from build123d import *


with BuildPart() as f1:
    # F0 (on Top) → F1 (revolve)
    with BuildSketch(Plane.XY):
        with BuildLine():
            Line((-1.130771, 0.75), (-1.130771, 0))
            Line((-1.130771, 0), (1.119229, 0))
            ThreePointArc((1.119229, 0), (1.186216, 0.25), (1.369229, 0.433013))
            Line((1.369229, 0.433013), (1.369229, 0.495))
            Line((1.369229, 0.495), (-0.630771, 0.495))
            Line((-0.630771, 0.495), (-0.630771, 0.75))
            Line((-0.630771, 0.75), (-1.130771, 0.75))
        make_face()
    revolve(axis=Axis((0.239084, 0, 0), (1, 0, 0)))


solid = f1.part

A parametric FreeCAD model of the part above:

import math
import FreeCAD as App
import Part
import Sketcher
from FreeCAD import Vector

doc = App.newDocument("Part")
body = doc.addObject("PartDesign::Body", "Body")

sketch1 = doc.addObject("Sketcher::SketchObject", "Sketch")
body.addObject(sketch1)
sketch1.AttachmentSupport = (doc.XY_Plane, [""])
sketch1.MapMode = "FlatFace"
sketch1.addGeometry(Part.LineSegment(Vector(-1.13, 0.75, 0), Vector(-1.13, 0, 0)), False)
sketch1.addGeometry(Part.LineSegment(Vector(-1.13, 0, 0), Vector(1.12, 0, 0)), False)
sketch1.addGeometry(Part.ArcOfCircle(Part.Circle(Vector(1.62, 0, 0), Vector(0, 0, 1), 0.5), math.radians(120), math.radians(180)), False)
sketch1.addGeometry(Part.LineSegment(Vector(1.37, 0.43, 0), Vector(1.37, 0.49, 0)), False)
sketch1.addGeometry(Part.LineSegment(Vector(1.37, 0.49, 0), Vector(-0.63, 0.49, 0)), False)
sketch1.addGeometry(Part.LineSegment(Vector(-0.63, 0.49, 0), Vector(-0.63, 0.75, 0)), False)
sketch1.addGeometry(Part.LineSegment(Vector(-0.63, 0.75, 0), Vector(-1.13, 0.75, 0)), False)
sketch1.addConstraint(Sketcher.Constraint("Coincident", 0, 2, 1, 1))
sketch1.addConstraint(Sketcher.Constraint("Coincident", 1, 2, 2, 2))
sketch1.addConstraint(Sketcher.Constraint("Coincident", 2, 1, 3, 1))
sketch1.addConstraint(Sketcher.Constraint("Coincident", 3, 2, 4, 1))
sketch1.addConstraint(Sketcher.Constraint("Coincident", 4, 2, 5, 1))
sketch1.addConstraint(Sketcher.Constraint("Coincident", 5, 2, 6, 1))
sketch1.addConstraint(Sketcher.Constraint("Coincident", 6, 2, 0, 1))
sketch1.addConstraint(Sketcher.Constraint("Vertical", 0))
sketch1.addConstraint(Sketcher.Constraint("Horizontal", 1))
sketch1.addConstraint(Sketcher.Constraint("Vertical", 3))
sketch1.addConstraint(Sketcher.Constraint("Horizontal", 4))
sketch1.addConstraint(Sketcher.Constraint("Vertical", 5))
sketch1.addConstraint(Sketcher.Constraint("Horizontal", 6))
sketch1.addConstraint(Sketcher.Constraint("PointOnObject", 2, 3, -1))
sketch1.addConstraint(Sketcher.Constraint("PointOnObject", 0, 2, -1))
sketch1.addConstraint(Sketcher.Constraint("Radius", 2, 0.499999))
sketch1.addConstraint(Sketcher.Constraint("DistanceX", 4, 2, 4, 1, 2.0))
sketch1.addConstraint(Sketcher.Constraint("DistanceX", 6, 2, 6, 1, 0.5))
sketch1.addConstraint(Sketcher.Constraint("DistanceX", 1, 1, 1, 2, 2.25))
sketch1.addConstraint(Sketcher.Constraint("DistanceY", 0, 2, 0, 1, 0.75))
sketch1.addConstraint(Sketcher.Constraint("DistanceY", 5, 1, 5, 2, 0.255))
sketch1.addConstraint(Sketcher.Constraint("DistanceX", -1, 1, 2, 3, 1.619228))
revolution = doc.addObject("PartDesign::Revolution", "Revolution")
body.addObject(revolution)
revolution.Profile = sketch1
revolution.ReferenceAxis = (sketch1, ["H_Axis"])
revolution.Angle = 360

doc.recompute()
